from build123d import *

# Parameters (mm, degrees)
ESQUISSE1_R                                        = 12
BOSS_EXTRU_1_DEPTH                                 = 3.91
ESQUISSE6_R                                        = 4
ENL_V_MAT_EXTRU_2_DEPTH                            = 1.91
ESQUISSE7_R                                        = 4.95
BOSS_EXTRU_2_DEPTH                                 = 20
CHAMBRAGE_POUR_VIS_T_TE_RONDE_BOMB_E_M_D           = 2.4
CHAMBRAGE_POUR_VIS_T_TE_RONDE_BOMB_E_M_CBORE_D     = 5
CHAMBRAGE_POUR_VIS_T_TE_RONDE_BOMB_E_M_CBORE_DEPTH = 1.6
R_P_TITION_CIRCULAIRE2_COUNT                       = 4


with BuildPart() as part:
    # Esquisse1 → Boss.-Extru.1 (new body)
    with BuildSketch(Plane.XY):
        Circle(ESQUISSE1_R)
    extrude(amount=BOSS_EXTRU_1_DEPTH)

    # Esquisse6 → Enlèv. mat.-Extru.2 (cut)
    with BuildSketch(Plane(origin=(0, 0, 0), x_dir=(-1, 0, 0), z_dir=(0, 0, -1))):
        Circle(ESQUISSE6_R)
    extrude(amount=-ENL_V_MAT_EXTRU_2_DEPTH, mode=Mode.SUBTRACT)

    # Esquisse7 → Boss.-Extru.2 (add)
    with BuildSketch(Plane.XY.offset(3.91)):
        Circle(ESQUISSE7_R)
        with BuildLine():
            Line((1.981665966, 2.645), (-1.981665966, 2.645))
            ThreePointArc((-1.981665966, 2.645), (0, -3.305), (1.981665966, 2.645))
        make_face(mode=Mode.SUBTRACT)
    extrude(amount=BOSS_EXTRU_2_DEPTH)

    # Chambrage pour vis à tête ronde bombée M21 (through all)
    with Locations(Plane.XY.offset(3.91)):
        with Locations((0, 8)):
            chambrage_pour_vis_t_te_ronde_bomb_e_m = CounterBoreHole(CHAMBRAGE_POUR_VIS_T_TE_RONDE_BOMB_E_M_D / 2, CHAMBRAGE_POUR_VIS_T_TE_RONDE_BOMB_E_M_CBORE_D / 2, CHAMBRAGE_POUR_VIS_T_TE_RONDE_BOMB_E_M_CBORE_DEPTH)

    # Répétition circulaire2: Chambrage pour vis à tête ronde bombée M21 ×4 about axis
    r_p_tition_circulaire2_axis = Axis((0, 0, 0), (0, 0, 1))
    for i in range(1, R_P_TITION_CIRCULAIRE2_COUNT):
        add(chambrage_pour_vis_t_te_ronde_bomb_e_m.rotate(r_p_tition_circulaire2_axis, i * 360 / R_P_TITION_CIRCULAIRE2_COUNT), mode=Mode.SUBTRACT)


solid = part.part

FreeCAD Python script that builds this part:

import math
import FreeCAD as App
import Part
import Sketcher
from FreeCAD import Vector
Q = App.Units.Quantity

doc = App.newDocument("Part")
body = doc.addObject("PartDesign::Body", "Body")

# Sketch on XY plane
sketch1 = body.newObject("Sketcher::SketchObject", "Sketch")
sketch1.AttachmentSupport = (doc.getObject("XY_Plane"), [""])
sketch1.MapMode = "FlatFace"
sketch1.addGeometry(Part.Circle(Vector(0, 0, 0), Vector(0, 0, 1), 12), False)
sketch1.addConstraint([
    Sketcher.Constraint("Coincident", 0, 3, -1, 1),
    Sketcher.Constraint("Diameter", 0, Q("24 mm")),
])
pad1 = body.newObject("PartDesign::Pad", "Pad")
pad1.Profile = sketch1
pad1.Length = 3.91

# Sketch on XY plane
sketch2 = body.newObject("Sketcher::SketchObject", "Sketch001")
sketch2.AttachmentSupport = (doc.getObject("XY_Plane"), [""])
sketch2.MapMode = "FlatFace"
sketch2.addGeometry(Part.Circle(Vector(0, 0, 0), Vector(0, 0, 1), 4), False)
sketch2.addConstraint([
    Sketcher.Constraint("Coincident", 0, 3, -1, 1),
    Sketcher.Constraint("Diameter", 0, Q("8 mm")),
])
pocket1 = body.newObject("PartDesign::Pocket", "Pocket")
pocket1.Profile = sketch2
pocket1.Length = 1.91
pocket1.Reversed = True

# Sketch on XY plane
sketch3 = body.newObject("Sketcher::SketchObject", "Sketch002")
sketch3.AttachmentSupport = (doc.getObject("XY_Plane"), [""])
sketch3.MapMode = "FlatFace"
sketch3.AttachmentOffset = App.Placement(Vector(0, 0, 3.91), App.Rotation())
sketch3.addGeometry([
    Part.Circle(Vector(0, 0, 0), Vector(0, 0, 1), 4.95),
    Part.LineSegment(Vector(-1.981666, 2.645, 0), Vector(1.981666, 2.645, 0)),
    Part.ArcOfCircle(Part.Circle(Vector(0, 0, 0), Vector(0, 0, 1), 3.305), math.radians(126.840994), math.radians(413.159006)),
], False)
sketch3.addConstraint([
    Sketcher.Constraint("Coincident", 1, 1, 2, 1),
    Sketcher.Constraint("Coincident", 2, 2, 1, 2),
    Sketcher.Constraint("Horizontal", 1),
    Sketcher.Constraint("Coincident", 0, 3, -1, 1),
    Sketcher.Constraint("Coincident", 2, 3, -1, 1),
    Sketcher.Constraint("Diameter", 0, Q("9.9 mm")),
    Sketcher.Constraint("Radius", 2, Q("3.305 mm")),
    Sketcher.Constraint("DistanceY", -1, 1, 1, 1, Q("2.645 mm")),
])
pad2 = body.newObject("PartDesign::Pad", "Pad001")
pad2.Profile = sketch3
pad2.Length = 20

# Sketch on XY plane
sketch4 = body.newObject("Sketcher::SketchObject", "Sketch003")
sketch4.AttachmentSupport = (doc.getObject("XY_Plane"), [""])
sketch4.MapMode = "FlatFace"
sketch4.AttachmentOffset = App.Placement(Vector(0, 0, 3.91), App.Rotation())
sketch4.addGeometry(Part.Circle(Vector(0, 8, 0), Vector(0, 0, 1), 1.2), False)
sketch4.addConstraint([
    Sketcher.Constraint("PointOnObject", 0, 3, -2),
    Sketcher.Constraint("Diameter", 0, Q("2.4 mm")),
    Sketcher.Constraint("DistanceY", -1, 1, 0, 3, Q("8 mm")),
])
doc.recompute()
hole = body.newObject("PartDesign::Hole", "Hole")
hole.Profile = sketch4
hole.ThreadType = "None"
hole.Diameter = 2.4
hole.DepthType = "ThroughAll"
hole.HoleCutType = "Counterbore"
hole.HoleCutDiameter = 5
hole.HoleCutDepth = 1.6
doc.recompute()

polarpattern = body.newObject("PartDesign::PolarPattern", "PolarPattern")
polarpattern.Originals = [hole]
polarpattern.Axis = (doc.getObject("Z_Axis"), [""])
polarpattern.Angle = 360
polarpattern.Occurrences = 4
body.Tip = polarpattern

doc.recompute()
